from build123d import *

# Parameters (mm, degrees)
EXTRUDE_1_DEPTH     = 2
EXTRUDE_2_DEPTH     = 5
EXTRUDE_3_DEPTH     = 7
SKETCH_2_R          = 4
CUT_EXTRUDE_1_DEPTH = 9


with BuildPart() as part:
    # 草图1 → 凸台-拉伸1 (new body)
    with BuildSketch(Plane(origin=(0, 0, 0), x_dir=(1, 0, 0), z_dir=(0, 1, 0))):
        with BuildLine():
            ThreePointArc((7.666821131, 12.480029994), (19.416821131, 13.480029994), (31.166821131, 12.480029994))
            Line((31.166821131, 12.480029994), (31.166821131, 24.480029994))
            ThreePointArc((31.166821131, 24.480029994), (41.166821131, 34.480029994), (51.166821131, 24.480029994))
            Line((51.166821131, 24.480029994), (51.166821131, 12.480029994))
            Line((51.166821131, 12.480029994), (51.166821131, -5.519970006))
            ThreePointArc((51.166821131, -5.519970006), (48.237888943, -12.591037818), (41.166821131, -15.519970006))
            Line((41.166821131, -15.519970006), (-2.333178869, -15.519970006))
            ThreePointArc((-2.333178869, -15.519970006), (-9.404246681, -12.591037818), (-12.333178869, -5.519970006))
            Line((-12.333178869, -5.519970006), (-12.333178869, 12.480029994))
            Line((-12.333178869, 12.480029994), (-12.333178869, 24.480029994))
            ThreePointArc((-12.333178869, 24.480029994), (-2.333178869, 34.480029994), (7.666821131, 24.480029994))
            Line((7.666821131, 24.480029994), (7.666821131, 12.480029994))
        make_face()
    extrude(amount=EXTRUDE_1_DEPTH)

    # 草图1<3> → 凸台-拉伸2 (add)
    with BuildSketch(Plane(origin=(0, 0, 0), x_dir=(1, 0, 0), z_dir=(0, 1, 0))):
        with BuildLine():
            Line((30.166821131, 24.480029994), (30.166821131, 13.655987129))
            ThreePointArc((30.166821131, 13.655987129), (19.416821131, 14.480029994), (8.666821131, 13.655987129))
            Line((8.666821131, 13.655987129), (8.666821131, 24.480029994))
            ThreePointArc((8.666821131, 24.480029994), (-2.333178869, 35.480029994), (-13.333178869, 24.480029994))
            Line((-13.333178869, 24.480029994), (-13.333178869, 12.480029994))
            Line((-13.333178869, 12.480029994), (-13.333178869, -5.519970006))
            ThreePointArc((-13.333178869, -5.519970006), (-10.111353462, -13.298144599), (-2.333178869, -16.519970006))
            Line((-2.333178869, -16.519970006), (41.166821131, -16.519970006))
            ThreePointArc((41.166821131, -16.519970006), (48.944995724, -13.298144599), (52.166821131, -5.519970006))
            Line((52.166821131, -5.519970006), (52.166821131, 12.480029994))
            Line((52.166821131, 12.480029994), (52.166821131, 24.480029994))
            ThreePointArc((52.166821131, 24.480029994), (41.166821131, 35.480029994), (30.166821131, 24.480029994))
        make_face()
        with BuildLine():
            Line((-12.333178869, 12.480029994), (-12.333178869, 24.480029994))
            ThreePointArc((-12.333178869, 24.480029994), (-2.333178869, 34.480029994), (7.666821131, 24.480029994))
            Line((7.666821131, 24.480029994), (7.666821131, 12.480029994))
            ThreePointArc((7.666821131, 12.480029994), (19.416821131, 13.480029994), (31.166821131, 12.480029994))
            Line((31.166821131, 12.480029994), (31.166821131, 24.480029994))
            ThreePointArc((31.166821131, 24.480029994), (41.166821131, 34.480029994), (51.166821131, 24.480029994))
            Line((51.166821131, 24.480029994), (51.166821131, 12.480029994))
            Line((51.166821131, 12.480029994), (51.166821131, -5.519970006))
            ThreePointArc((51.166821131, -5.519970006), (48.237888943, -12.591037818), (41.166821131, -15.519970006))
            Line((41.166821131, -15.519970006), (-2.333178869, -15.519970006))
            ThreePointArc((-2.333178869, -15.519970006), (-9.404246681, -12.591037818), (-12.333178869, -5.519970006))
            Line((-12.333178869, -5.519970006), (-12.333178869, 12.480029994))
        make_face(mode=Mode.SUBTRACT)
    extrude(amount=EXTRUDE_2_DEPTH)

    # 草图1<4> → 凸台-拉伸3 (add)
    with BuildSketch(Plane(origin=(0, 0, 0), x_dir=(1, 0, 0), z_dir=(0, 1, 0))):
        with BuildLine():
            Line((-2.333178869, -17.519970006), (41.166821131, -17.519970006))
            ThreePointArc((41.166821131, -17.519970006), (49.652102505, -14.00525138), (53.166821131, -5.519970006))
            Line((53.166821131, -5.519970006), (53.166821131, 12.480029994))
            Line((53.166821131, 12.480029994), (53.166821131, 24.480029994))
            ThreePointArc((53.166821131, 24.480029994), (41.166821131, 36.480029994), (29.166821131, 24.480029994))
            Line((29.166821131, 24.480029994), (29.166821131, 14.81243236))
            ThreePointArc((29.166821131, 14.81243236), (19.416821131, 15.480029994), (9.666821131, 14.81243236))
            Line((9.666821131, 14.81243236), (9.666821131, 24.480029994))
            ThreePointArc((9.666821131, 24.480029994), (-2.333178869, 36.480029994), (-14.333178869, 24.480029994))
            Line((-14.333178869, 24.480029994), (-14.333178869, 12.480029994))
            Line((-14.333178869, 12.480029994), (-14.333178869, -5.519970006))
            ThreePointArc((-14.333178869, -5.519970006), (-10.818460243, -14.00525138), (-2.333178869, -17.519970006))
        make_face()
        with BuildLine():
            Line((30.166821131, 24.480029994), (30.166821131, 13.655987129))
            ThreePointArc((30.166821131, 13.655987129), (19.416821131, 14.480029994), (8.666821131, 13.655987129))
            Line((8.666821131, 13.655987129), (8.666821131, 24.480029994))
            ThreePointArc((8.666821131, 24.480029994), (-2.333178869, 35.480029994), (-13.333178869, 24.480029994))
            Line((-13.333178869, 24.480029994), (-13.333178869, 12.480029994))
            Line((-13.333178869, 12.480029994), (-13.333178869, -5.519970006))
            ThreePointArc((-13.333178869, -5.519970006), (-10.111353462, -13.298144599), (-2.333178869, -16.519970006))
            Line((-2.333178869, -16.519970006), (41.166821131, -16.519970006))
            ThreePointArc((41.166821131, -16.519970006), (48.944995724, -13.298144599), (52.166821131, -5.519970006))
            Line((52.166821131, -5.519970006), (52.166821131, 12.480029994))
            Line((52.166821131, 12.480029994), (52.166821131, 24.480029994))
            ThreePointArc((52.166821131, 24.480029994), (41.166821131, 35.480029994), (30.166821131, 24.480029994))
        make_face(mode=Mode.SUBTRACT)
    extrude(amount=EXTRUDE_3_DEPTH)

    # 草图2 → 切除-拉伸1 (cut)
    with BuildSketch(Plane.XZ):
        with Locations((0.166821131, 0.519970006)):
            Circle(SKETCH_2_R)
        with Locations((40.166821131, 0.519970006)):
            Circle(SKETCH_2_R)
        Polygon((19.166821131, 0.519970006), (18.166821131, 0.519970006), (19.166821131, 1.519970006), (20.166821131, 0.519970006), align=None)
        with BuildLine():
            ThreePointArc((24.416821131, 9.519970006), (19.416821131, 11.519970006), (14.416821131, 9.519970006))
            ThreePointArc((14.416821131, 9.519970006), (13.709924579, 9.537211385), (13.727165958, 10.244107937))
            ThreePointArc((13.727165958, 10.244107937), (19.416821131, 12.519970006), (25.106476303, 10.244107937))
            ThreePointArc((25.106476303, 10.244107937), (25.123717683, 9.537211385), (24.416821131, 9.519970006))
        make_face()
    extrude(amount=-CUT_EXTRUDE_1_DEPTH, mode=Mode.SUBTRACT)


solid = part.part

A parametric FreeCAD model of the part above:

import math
import FreeCAD as App
import Part
import Sketcher
from FreeCAD import Vector

doc = App.newDocument("Part")
body = doc.addObject("PartDesign::Body", "Body")

# Sketch on XZ plane
sketch1 = doc.addObject("Sketcher::SketchObject", "Sketch")
body.addObject(sketch1)
sketch1.AttachmentSupport = (doc.XZ_Plane, [""])
sketch1.MapMode = "FlatFace"
sketch1.addGeometry(Part.ArcOfCircle(Part.Circle(Vector(19, 56, 0), Vector(0, 0, 1), 70), math.radians(-99.73), math.radians(-80.27)), False)
sketch1.addGeometry(Part.LineSegment(Vector(8, -12, 0), Vector(8, -24, 0)), False)
sketch1.addGeometry(Part.ArcOfCircle(Part.Circle(Vector(-2, -24, 0), Vector(0, 0, 1), 10), math.radians(180), math.radians(360)), False)
sketch1.addGeometry(Part.LineSegment(Vector(-12, -24, 0), Vector(-12, 6, 0)), False)
sketch1.addGeometry(Part.ArcOfCircle(Part.Circle(Vector(-2, 6, 0), Vector(0, 0, 1), 10), math.radians(90), math.radians(180)), False)
sketch1.addGeometry(Part.LineSegment(Vector(-2, 16, 0), Vector(41, 16, 0)), False)
sketch1.addGeometry(Part.ArcOfCircle(Part.Circle(Vector(41, 6, 0), Vector(0, 0, 1), 10), math.radians(0), math.radians(90)), False)
sketch1.addGeometry(Part.LineSegment(Vector(51, 6, 0), Vector(51, -24, 0)), False)
sketch1.addGeometry(Part.ArcOfCircle(Part.Circle(Vector(41, -24, 0), Vector(0, 0, 1), 10), math.radians(180), math.radians(360)), False)
sketch1.addGeometry(Part.LineSegment(Vector(31, -24, 0), Vector(31, -12, 0)), False)
sketch1.addConstraint(Sketcher.Constraint("Coincident", 0, 1, 1, 1))
sketch1.addConstraint(Sketcher.Constraint("Tangent", 1, 2, 2, 2))
sketch1.addConstraint(Sketcher.Constraint("Tangent", 2, 1, 3, 1))
sketch1.addConstraint(Sketcher.Constraint("Tangent", 3, 2, 4, 2))
sketch1.addConstraint(Sketcher.Constraint("Tangent", 4, 1, 5, 1))
sketch1.addConstraint(Sketcher.Constraint("Tangent", 5, 2, 6, 2))
sketch1.addConstraint(Sketcher.Constraint("Tangent", 6, 1, 7, 1))
sketch1.addConstraint(Sketcher.Constraint("Tangent", 7, 2, 8, 2))
sketch1.addConstraint(Sketcher.Constraint("Tangent", 8, 1, 9, 1))
sketch1.addConstraint(Sketcher.Constraint("Coincident", 9, 2, 0, 2))
sketch1.addConstraint(Sketcher.Constraint("Vertical", 1))
sketch1.addConstraint(Sketcher.Constraint("Vertical", 3))
sketch1.addConstraint(Sketcher.Constraint("Horizontal", 5))
sketch1.addConstraint(Sketcher.Constraint("Vertical", 7))
sketch1.addConstraint(Sketcher.Constraint("Vertical", 9))
sketch1.addConstraint(Sketcher.Constraint("Equal", 2, 4))
sketch1.addConstraint(Sketcher.Constraint("Equal", 4, 6))
sketch1.addConstraint(Sketcher.Constraint("Equal", 6, 8))
sketch1.addConstraint(Sketcher.Constraint("Horizontal", 2, 3, 8, 3))
sketch1.addConstraint(Sketcher.Constraint("Horizontal", 0, 1, 9, 2))
sketch1.addConstraint(Sketcher.Constraint("Radius", 2, 10.0))
sketch1.addConstraint(Sketcher.Constraint("DistanceY", 1, 2, 1, 1, 12.0))
sketch1.addConstraint(Sketcher.Constraint("DistanceY", 3, 1, 3, 2, 30.0))
sketch1.addConstraint(Sketcher.Constraint("DistanceX", 5, 1, 5, 2, 43.5))
sketch1.addConstraint(Sketcher.Constraint("Radius", 0, 69.53125))
sketch1.addConstraint(Sketcher.Constraint("DistanceX", -1, 1, 0, 3, 19.416821))
sketch1.addConstraint(Sketcher.Constraint("DistanceY", -1, 1, 0, 3, 56.05122))
pad1 = doc.addObject("PartDesign::Pad", "Pad")
body.addObject(pad1)
pad1.Profile = sketch1
pad1.Length = 2
pad1.Reversed = True

# Sketch on XZ plane
sketch2 = doc.addObject("Sketcher::SketchObject", "Sketch001")
body.addObject(sketch2)
sketch2.AttachmentSupport = (doc.XZ_Plane, [""])
sketch2.MapMode = "FlatFace"
sketch2.addGeometry(Part.LineSegment(Vector(30, -24, 0), Vector(30, -14, 0)), False)
sketch2.addGeometry(Part.ArcOfCircle(Part.Circle(Vector(19, 56, 0), Vector(0, 0, 1), 71), math.radians(-98.77), math.radians(-81.23)), False)
sketch2.addGeometry(Part.LineSegment(Vector(9, -14, 0), Vector(9, -24, 0)), False)
sketch2.addGeometry(Part.ArcOfCircle(Part.Circle(Vector(-2, -24, 0), Vector(0, 0, 1), 11), math.radians(180), math.radians(360)), False)
sketch2.addGeometry(Part.LineSegment(Vector(-13, -24, 0), Vector(-13, 6, 0)), False)
sketch2.addGeometry(Part.ArcOfCircle(Part.Circle(Vector(-2, 6, 0), Vector(0, 0, 1), 11), math.radians(90), math.radians(180)), False)
sketch2.addGeometry(Part.LineSegment(Vector(-2, 17, 0), Vector(41, 17, 0)), False)
sketch2.addGeometry(Part.ArcOfCircle(Part.Circle(Vector(41, 6, 0), Vector(0, 0, 1), 11), math.radians(0), math.radians(90)), False)
sketch2.addGeometry(Part.LineSegment(Vector(52, 6, 0), Vector(52, -24, 0)), False)
sketch2.addGeometry(Part.ArcOfCircle(Part.Circle(Vector(41, -24, 0), Vector(0, 0, 1), 11), math.radians(180), math.radians(360)), False)
sketch2.addGeometry(Part.LineSegment(Vector(-12, 6, 0), Vector(-12, -24, 0)), False)
sketch2.addGeometry(Part.ArcOfCircle(Part.Circle(Vector(-2, -24, 0), Vector(0, 0, 1), 10), math.radians(180), math.radians(360)), False)
sketch2.addGeometry(Part.LineSegment(Vector(8, -24, 0), Vector(8, -12, 0)), False)
sketch2.addGeometry(Part.ArcOfCircle(Part.Circle(Vector(19, 56, 0), Vector(0, 0, 1), 70), math.radians(-99.73), math.radians(-80.27)), False)
sketch2.addGeometry(Part.LineSegment(Vector(31, -12, 0), Vector(31, -24, 0)), False)
sketch2.addGeometry(Part.ArcOfCircle(Part.Circle(Vector(41, -24, 0), Vector(0, 0, 1), 10), math.radians(180), math.radians(360)), False)
sketch2.addGeometry(Part.LineSegment(Vector(51, -24, 0), Vector(51, 6, 0)), False)
sketch2.addGeometry(Part.ArcOfCircle(Part.Circle(Vector(41, 6, 0), Vector(0, 0, 1), 10), math.radians(0), math.radians(90)), False)
sketch2.addGeometry(Part.LineSegment(Vector(41, 16, 0), Vector(-2, 16, 0)), False)
sketch2.addGeometry(Part.ArcOfCircle(Part.Circle(Vector(-2, 6, 0), Vector(0, 0, 1), 10), math.radians(90), math.radians(180)), False)
sketch2.addConstraint(Sketcher.Constraint("Coincident", 0, 2, 1, 2))
sketch2.addConstraint(Sketcher.Constraint("Coincident", 1, 1, 2, 1))
sketch2.addConstraint(Sketcher.Constraint("Tangent", 2, 2, 3, 2))
sketch2.addConstraint(Sketcher.Constraint("Tangent", 3, 1, 4, 1))
sketch2.addConstraint(Sketcher.Constraint("Tangent", 4, 2, 5, 2))
sketch2.addConstraint(Sketcher.Constraint("Tangent", 5, 1, 6, 1))
sketch2.addConstraint(Sketcher.Constraint("Tangent", 6, 2, 7, 2))
sketch2.addConstraint(Sketcher.Constraint("Tangent", 7, 1, 8, 1))
sketch2.addConstraint(Sketcher.Constraint("Tangent", 8, 2, 9, 2))
sketch2.addConstraint(Sketcher.Constraint("Tangent", 9, 1, 0, 1))
sketch2.addConstraint(Sketcher.Constraint("Tangent", 10, 2, 11, 1))
sketch2.addConstraint(Sketcher.Constraint("Tangent", 11, 2, 12, 1))
sketch2.addConstraint(Sketcher.Constraint("Coincident", 12, 2, 13, 1))
sketch2.addConstraint(Sketcher.Constraint("Coincident", 13, 2, 14, 1))
sketch2.addConstraint(Sketcher.Constraint("Tangent", 14, 2, 15, 1))
sketch2.addConstraint(Sketcher.Constraint("Tangent", 15, 2, 16, 1))
sketch2.addConstraint(Sketcher.Constraint("Tangent", 16, 2, 17, 1))
sketch2.addConstraint(Sketcher.Constraint("Tangent", 17, 2, 18, 1))
sketch2.addConstraint(Sketcher.Constraint("Tangent", 18, 2, 19, 1))
sketch2.addConstraint(Sketcher.Constraint("Tangent", 19, 2, 10, 1))
sketch2.addConstraint(Sketcher.Constraint("Vertical", 0))
sketch2.addConstraint(Sketcher.Constraint("Vertical", 2))
sketch2.addConstraint(Sketcher.Constraint("Vertical", 4))
sketch2.addConstraint(Sketcher.Constraint("Horizontal", 6))
sketch2.addConstraint(Sketcher.Constraint("Vertical", 8))
sketch2.addConstraint(Sketcher.Constraint("Vertical", 10))
sketch2.addConstraint(Sketcher.Constraint("Vertical", 12))
sketch2.addConstraint(Sketcher.Constraint("Vertical", 14))
sketch2.addConstraint(Sketcher.Constraint("Vertical", 16))
sketch2.addConstraint(Sketcher.Constraint("Horizontal", 18))
sketch2.addConstraint(Sketcher.Constraint("Coincident", 11, 3, 3, 3))
sketch2.addConstraint(Sketcher.Constraint("Coincident", 13, 3, 1, 3))
sketch2.addConstraint(Sketcher.Constraint("Coincident", 15, 3, 9, 3))
sketch2.addConstraint(Sketcher.Constraint("Coincident", 17, 3, 7, 3))
sketch2.addConstraint(Sketcher.Constraint("Coincident", 19, 3, 5, 3))
sketch2.addConstraint(Sketcher.Constraint("Equal", 3, 5))
sketch2.addConstraint(Sketcher.Constraint("Equal", 5, 7))
sketch2.addConstraint(Sketcher.Constraint("Equal", 7, 9))
sketch2.addConstraint(Sketcher.Constraint("Horizontal", 3, 3, 9, 3))
sketch2.addConstraint(Sketcher.Constraint("Horizontal", 0, 2, 1, 1))
sketch2.addConstraint(Sketcher.Constraint("Radius", 3, 11.0))
sketch2.addConstraint(Sketcher.Constraint("Radius", 11, 10.0))
sketch2.addConstraint(Sketcher.Constraint("DistanceY", 4, 1, 4, 2, 30.0))
sketch2.addConstraint(Sketcher.Constraint("DistanceY", 12, 1, 12, 2, 12.0))
sketch2.addConstraint(Sketcher.Constraint("DistanceX", 6, 1, 6, 2, 43.5))
sketch2.addConstraint(Sketcher.Constraint("Radius", 1, 70.53125))
sketch2.addConstraint(Sketcher.Constraint("Radius", 13, 69.53125))
sketch2.addConstraint(Sketcher.Constraint("DistanceX", -1, 1, 1, 3, 19.416821))
sketch2.addConstraint(Sketcher.Constraint("DistanceY", -1, 1, 1, 3, 56.05122))
pad2 = doc.addObject("PartDesign::Pad", "Pad001")
body.addObject(pad2)
pad2.Profile = sketch2
pad2.Length = 5
pad2.Reversed = True

# Sketch on XZ plane
sketch3 = doc.addObject("Sketcher::SketchObject", "Sketch002")
body.addObject(sketch3)
sketch3.AttachmentSupport = (doc.XZ_Plane, [""])
sketch3.MapMode = "FlatFace"
sketch3.addGeometry(Part.LineSegment(Vector(-2, 18, 0), Vector(41, 18, 0)), False)
sketch3.addGeometry(Part.ArcOfCircle(Part.Circle(Vector(41, 6, 0), Vector(0, 0, 1), 12), math.radians(0), math.radians(90)), False)
sketch3.addGeometry(Part.LineSegment(Vector(53, 6, 0), Vector(53, -24, 0)), False)
sketch3.addGeometry(Part.ArcOfCircle(Part.Circle(Vector(41, -24, 0), Vector(0, 0, 1), 12), math.radians(180), math.radians(360)), False)
sketch3.addGeometry(Part.LineSegment(Vector(29, -24, 0), Vector(29, -15, 0)), False)
sketch3.addGeometry(Part.ArcOfCircle(Part.Circle(Vector(19, 56, 0), Vector(0, 0, 1), 72), math.radians(-97.83), math.radians(-82.17)), False)
sketch3.addGeometry(Part.LineSegment(Vector(10, -15, 0), Vector(10, -24, 0)), False)
sketch3.addGeometry(Part.ArcOfCircle(Part.Circle(Vector(-2, -24, 0), Vector(0, 0, 1), 12), math.radians(180), math.radians(360)), False)
sketch3.addGeometry(Part.LineSegment(Vector(-14, -24, 0), Vector(-14, 6, 0)), False)
sketch3.addGeometry(Part.ArcOfCircle(Part.Circle(Vector(-2, 6, 0), Vector(0, 0, 1), 12), math.radians(90), math.radians(180)), False)
sketch3.addGeometry(Part.LineSegment(Vector(30, -14, 0), Vector(30, -24, 0)), False)
sketch3.addGeometry(Part.ArcOfCircle(Part.Circle(Vector(41, -24, 0), Vector(0, 0, 1), 11), math.radians(180), math.radians(360)), False)
sketch3.addGeometry(Part.LineSegment(Vector(52, -24, 0), Vector(52, 6, 0)), False)
sketch3.addGeometry(Part.ArcOfCircle(Part.Circle(Vector(41, 6, 0), Vector(0, 0, 1), 11), math.radians(0), math.radians(90)), False)
sketch3.addGeometry(Part.LineSegment(Vector(41, 17, 0), Vector(-2, 17, 0)), False)
sketch3.addGeometry(Part.ArcOfCircle(Part.Circle(Vector(-2, 6, 0), Vector(0, 0, 1), 11), math.radians(90), math.radians(180)), False)
sketch3.addGeometry(Part.LineSegment(Vector(-13, 6, 0), Vector(-13, -24, 0)), False)
sketch3.addGeometry(Part.ArcOfCircle(Part.Circle(Vector(-2, -24, 0), Vector(0, 0, 1), 11), math.radians(180), math.radians(360)), False)
sketch3.addGeometry(Part.LineSegment(Vector(9, -24, 0), Vector(9, -14, 0)), False)
sketch3.addGeometry(Part.ArcOfCircle(Part.Circle(Vector(19, 56, 0), Vector(0, 0, 1), 71), math.radians(-98.77), math.radians(-81.23)), False)
sketch3.addConstraint(Sketcher.Constraint("Tangent", 0, 2, 1, 2))
sketch3.addConstraint(Sketcher.Constraint("Tangent", 1, 1, 2, 1))
sketch3.addConstraint(Sketcher.Constraint("Tangent", 2, 2, 3, 2))
sketch3.addConstraint(Sketcher.Constraint("Tangent", 3, 1, 4, 1))
sketch3.addConstraint(Sketcher.Constraint("Coincident", 4, 2, 5, 2))
sketch3.addConstraint(Sketcher.Constraint("Coincident", 5, 1, 6, 1))
sketch3.addConstraint(Sketcher.Constraint("Tangent", 6, 2, 7, 2))
sketch3.addConstraint(Sketcher.Constraint("Tangent", 7, 1, 8, 1))
sketch3.addConstraint(Sketcher.Constraint("Tangent", 8, 2, 9, 2))
sketch3.addConstraint(Sketcher.Constraint("Tangent", 9, 1, 0, 1))
sketch3.addConstraint(Sketcher.Constraint("Tangent", 10, 2, 11, 1))
sketch3.addConstraint(Sketcher.Constraint("Tangent", 11, 2, 12, 1))
sketch3.addConstraint(Sketcher.Constraint("Tangent", 12, 2, 13, 1))
sketch3.addConstraint(Sketcher.Constraint("Tangent", 13, 2, 14, 1))
sketch3.addConstraint(Sketcher.Constraint("Tangent", 14, 2, 15, 1))
sketch3.addConstraint(Sketcher.Constraint("Tangent", 15, 2, 16, 1))
sketch3.addConstraint(Sketcher.Constraint("Tangent", 16, 2, 17, 1))
sketch3.addConstraint(Sketcher.Constraint("Tangent", 17, 2, 18, 1))
sketch3.addConstraint(Sketcher.Constraint("Coincident", 18, 2, 19, 1))
sketch3.addConstraint(Sketcher.Constraint("Coincident", 19, 2, 10, 1))
sketch3.addConstraint(Sketcher.Constraint("Horizontal", 0))
sketch3.addConstraint(Sketcher.Constraint("Vertical", 2))
sketch3.addConstraint(Sketcher.Constraint("Vertical", 4))
sketch3.addConstraint(Sketcher.Constraint("Vertical", 6))
sketch3.addConstraint(Sketcher.Constraint("Vertical", 8))
sketch3.addConstraint(Sketcher.Constraint("Vertical", 10))
sketch3.addConstraint(Sketcher.Constraint("Vertical", 12))
sketch3.addConstraint(Sketcher.Constraint("Horizontal", 14))
sketch3.addConstraint(Sketcher.Constraint("Vertical", 16))
sketch3.addConstraint(Sketcher.Constraint("Vertical", 18))
sketch3.addConstraint(Sketcher.Constraint("Coincident", 11, 3, 3, 3))
sketch3.addConstraint(Sketcher.Constraint("Coincident", 13, 3, 1, 3))
sketch3.addConstraint(Sketcher.Constraint("Coincident", 15, 3, 9, 3))
sketch3.addConstraint(Sketcher.Constraint("Coincident", 17, 3, 7, 3))
sketch3.addConstraint(Sketcher.Constraint("Coincident", 19, 3, 5, 3))
sketch3.addConstraint(Sketcher.Constraint("Equal", 1, 3))
sketch3.addConstraint(Sketcher.Constraint("Equal", 3, 7))
sketch3.addConstraint(Sketcher.Constraint("Equal", 7, 9))
sketch3.addConstraint(Sketcher.Constraint("Horizontal", 3, 3, 7, 3))
sketch3.addConstraint(Sketcher.Constraint("Horizontal", 4, 2, 5, 1))
sketch3.addConstraint(Sketcher.Constraint("Radius", 1, 12.0))
sketch3.addConstraint(Sketcher.Constraint("Radius", 11, 11.0))
sketch3.addConstraint(Sketcher.Constraint("DistanceY", 2, 2, 2, 1, 30.0))
sketch3.addConstraint(Sketcher.Constraint("DistanceX", 0, 1, 0, 2, 43.5))
sketch3.addConstraint(Sketcher.Constraint("Radius", 5, 71.53125))
sketch3.addConstraint(Sketcher.Constraint("Radius", 19, 70.53125))
sketch3.addConstraint(Sketcher.Constraint("DistanceY", 4, 1, 4, 2, 9.667598))
sketch3.addConstraint(Sketcher.Constraint("DistanceX", -1, 1, 1, 3, 41.166821))
sketch3.addConstraint(Sketcher.Constraint("DistanceY", -1, 1, 1, 3, 5.51997))
pad3 = doc.addObject("PartDesign::Pad", "Pad002")
body.addObject(pad3)
pad3.Profile = sketch3
pad3.Length = 7
pad3.Reversed = True

# Sketch on XZ plane
sketch4 = doc.addObject("Sketcher::SketchObject", "Sketch003")
body.addObject(sketch4)
sketch4.AttachmentSupport = (doc.XZ_Plane, [""])
sketch4.MapMode = "FlatFace"
sketch4.addGeometry(Part.Circle(Vector(0.2, 0.5, 0), Vector(0, 0, 1), 4), False)
sketch4.addGeometry(Part.Circle(Vector(40.2, 0.5, 0), Vector(0, 0, 1), 4), False)
sketch4.addGeometry(Part.LineSegment(Vector(18.2, 0.5, 0), Vector(20.2, 0.5, 0)), False)
sketch4.addGeometry(Part.LineSegment(Vector(20.2, 0.5, 0), Vector(19.2, 1.5, 0)), False)
sketch4.addGeometry(Part.LineSegment(Vector(19.2, 1.5, 0), Vector(18.2, 0.5, 0)), False)
sketch4.addGeometry(Part.ArcOfCircle(Part.Circle(Vector(19.4, 4.3, 0), Vector(0, 0, 1), 7.2), math.radians(46), math.radians(134)), False)
sketch4.addGeometry(Part.ArcOfCircle(Part.Circle(Vector(24.8, 9.9, 0), Vector(0, 0, 1), 0.5), math.radians(-134), math.radians(46)), False)
sketch4.addGeometry(Part.ArcOfCircle(Part.Circle(Vector(19.4, 4.3, 0), Vector(0, 0, 1), 8.2), math.radians(46), math.radians(134)), False)
sketch4.addGeometry(Part.ArcOfCircle(Part.Circle(Vector(14.1, 9.9, 0), Vector(0, 0, 1), 0.5), math.radians(134), math.radians(314)), False)
sketch4.addConstraint(Sketcher.Constraint("Coincident", 2, 2, 3, 1))
sketch4.addConstraint(Sketcher.Constraint("Coincident", 3, 2, 4, 1))
sketch4.addConstraint(Sketcher.Constraint("Coincident", 4, 2, 2, 1))
sketch4.addConstraint(Sketcher.Constraint("Tangent", 5, 1, 6, 1))
sketch4.addConstraint(Sketcher.Constraint("Tangent", 6, 2, 7, 1))
sketch4.addConstraint(Sketcher.Constraint("Tangent", 7, 2, 8, 1))
sketch4.addConstraint(Sketcher.Constraint("Tangent", 8, 2, 5, 2))
sketch4.addConstraint(Sketcher.Constraint("Horizontal", 2))
sketch4.addConstraint(Sketcher.Constraint("Coincident", 7, 3, 5, 3))
sketch4.addConstraint(Sketcher.Constraint("Equal", 0, 1))
sketch4.addConstraint(Sketcher.Constraint("Perpendicular", 3, 4))
sketch4.addConstraint(Sketcher.Constraint("Horizontal", 0, 3, 1, 3))
sketch4.addConstraint(Sketcher.Constraint("Horizontal", 6, 3, 8, 3))
sketch4.addConstraint(Sketcher.Constraint("Horizontal", 1, 3, 2, 2))
sketch4.addConstraint(Sketcher.Constraint("Equal", 3, 4))
sketch4.addConstraint(Sketcher.Constraint("Diameter", 0, 8.0))
sketch4.addConstraint(Sketcher.Constraint("Radius", 6, 0.5))
sketch4.addConstraint(Sketcher.Constraint("DistanceX", 2, 1, 2, 2, 2.0))
sketch4.addConstraint(Sketcher.Constraint("Radius", 5, 7.25))
sketch4.addConstraint(Sketcher.Constraint("DistanceX", 0, 3, 1, 3, 40.0))
sketch4.addConstraint(Sketcher.Constraint("DistanceX", 0, 3, 2, 2, 20.0))
sketch4.addConstraint(Sketcher.Constraint("DistanceX", 5, 3, 5, 1, 5.0))
sketch4.addConstraint(Sketcher.Constraint("DistanceY", 3, 2, 5, 1, 8.0))
sketch4.addConstraint(Sketcher.Constraint("DistanceX", 0, 3, 5, 3, 19.25))
sketch4.addConstraint(Sketcher.Constraint("DistanceX", -1, 1, 0, 3, 0.166821))
sketch4.addConstraint(Sketcher.Constraint("DistanceY", -1, 1, 0, 3, 0.51997))
pocket1 = doc.addObject("PartDesign::Pocket", "Pocket")
body.addObject(pocket1)
pocket1.Profile = sketch4
pocket1.Length = 9

doc.recompute()
